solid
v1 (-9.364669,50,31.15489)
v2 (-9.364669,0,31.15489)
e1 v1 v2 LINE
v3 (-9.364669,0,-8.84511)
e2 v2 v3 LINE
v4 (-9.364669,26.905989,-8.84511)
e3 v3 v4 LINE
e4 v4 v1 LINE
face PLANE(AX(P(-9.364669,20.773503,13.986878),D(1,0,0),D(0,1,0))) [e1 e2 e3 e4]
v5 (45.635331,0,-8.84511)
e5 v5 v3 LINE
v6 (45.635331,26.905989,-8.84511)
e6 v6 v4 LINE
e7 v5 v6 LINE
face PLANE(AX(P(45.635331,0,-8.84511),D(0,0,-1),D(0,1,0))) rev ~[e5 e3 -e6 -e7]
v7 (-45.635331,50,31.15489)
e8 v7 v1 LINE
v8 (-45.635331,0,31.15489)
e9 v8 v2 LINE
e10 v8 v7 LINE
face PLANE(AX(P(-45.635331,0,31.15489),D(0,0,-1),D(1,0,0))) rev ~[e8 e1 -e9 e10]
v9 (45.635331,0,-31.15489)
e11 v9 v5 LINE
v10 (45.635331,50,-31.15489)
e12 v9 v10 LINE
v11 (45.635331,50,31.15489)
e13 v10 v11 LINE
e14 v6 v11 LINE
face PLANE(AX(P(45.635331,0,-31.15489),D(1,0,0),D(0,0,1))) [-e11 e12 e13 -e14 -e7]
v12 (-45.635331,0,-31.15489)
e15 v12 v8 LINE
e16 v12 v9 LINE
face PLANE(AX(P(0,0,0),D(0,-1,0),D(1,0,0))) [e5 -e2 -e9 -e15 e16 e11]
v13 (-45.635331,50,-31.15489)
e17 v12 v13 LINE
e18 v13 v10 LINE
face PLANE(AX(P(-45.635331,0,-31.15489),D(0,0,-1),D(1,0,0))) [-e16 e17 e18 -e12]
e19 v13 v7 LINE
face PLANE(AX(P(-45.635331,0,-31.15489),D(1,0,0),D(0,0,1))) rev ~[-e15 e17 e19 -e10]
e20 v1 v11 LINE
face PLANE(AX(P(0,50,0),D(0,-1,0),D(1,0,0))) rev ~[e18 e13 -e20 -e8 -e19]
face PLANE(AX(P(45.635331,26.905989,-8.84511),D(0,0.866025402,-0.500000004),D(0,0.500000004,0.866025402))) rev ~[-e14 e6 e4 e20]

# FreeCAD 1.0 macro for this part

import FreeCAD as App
import Part
import Sketcher
Q = App.Units.Quantity

doc = App.newDocument("Part")
params = doc.addObject("Spreadsheet::Sheet", "Params")
for row, (alias, value) in enumerate([
    ("pad1_length", "50 mm"),
    ("sketch2_width", "50 mm"),
    ("sketch2_height", "40 mm"),
    ("pocket1_length", "55 mm"),
], start=1):
    params.set(f"A{row}", alias)
    params.set(f"B{row}", "=" + value)
    params.setAlias(f"B{row}", alias)

body = doc.addObject("PartDesign::Body", "Body")

# Sketch on XZ plane
sketch1 = body.newObject("Sketcher::SketchObject", "Sketch")
sketch1.AttachmentSupport = (doc.getObject("XZ_Plane"), [""])
sketch1.MapMode = "FlatFace"
sketch1.addGeometry([
    Part.LineSegment(App.Vector(-46, 31, 0), App.Vector(-46, -31, 0)),
    Part.LineSegment(App.Vector(-46, -31, 0), App.Vector(46, -31, 0)),
    Part.LineSegment(App.Vector(46, -31, 0), App.Vector(46, 31, 0)),
    Part.LineSegment(App.Vector(46, 31, 0), App.Vector(-46, 31, 0)),
], False)
sketch1.addConstraint([
    Sketcher.Constraint("Coincident", 0, 2, 1, 1),
    Sketcher.Constraint("Coincident", 1, 2, 2, 1),
    Sketcher.Constraint("Coincident", 2, 2, 3, 1),
    Sketcher.Constraint("Coincident", 3, 2, 0, 1),
    Sketcher.Constraint("Vertical", 0),
    Sketcher.Constraint("Horizontal", 1),
    Sketcher.Constraint("Vertical", 2),
    Sketcher.Constraint("Horizontal", 3),
    Sketcher.Constraint("Symmetric", 0, 2, 2, 2, -1, 1),
    Sketcher.Constraint("DistanceX", 1, 1, 1, 2, 91.270662),
    Sketcher.Constraint("DistanceY", 0, 2, 0, 1, 62.30978),
])
pad1 = body.newObject("PartDesign::Pad", "Pad")
pad1.Profile = sketch1
pad1.setExpression("Length", "Params.pad1_length")
pad1.Reversed = True

# Sketch on YZ plane
sketch2 = body.newObject("Sketcher::SketchObject", "Sketch001")
sketch2.AttachmentSupport = (doc.getObject("YZ_Plane"), [""])
sketch2.MapMode = "FlatFace"
sketch2.AttachmentOffset = App.Placement(App.Vector(0, 0, 45.635331), App.Rotation())
sketch2.addGeometry([
    Part.LineSegment(App.Vector(0, 31, 0), App.Vector(0, -9, 0)),
    Part.LineSegment(App.Vector(0, -9, 0), App.Vector(27, -9, 0)),
    Part.LineSegment(App.Vector(27, -9, 0), App.Vector(50, 31, 0)),
    Part.LineSegment(App.Vector(50, 31, 0), App.Vector(0, 31, 0)),
], False)
sketch2.addConstraint([
    Sketcher.Constraint("Coincident", 0, 2, 1, 1),
    Sketcher.Constraint("Coincident", 1, 2, 2, 1),
    Sketcher.Constraint("Coincident", 2, 2, 3, 1),
    Sketcher.Constraint("Coincident", 3, 2, 0, 1),
    Sketcher.Constraint("Vertical", 0),
    Sketcher.Constraint("Horizontal", 1),
    Sketcher.Constraint("Horizontal", 3),
    Sketcher.Constraint("PointOnObject", 0, 2, -2),
    Sketcher.Constraint("DistanceX", 3, 2, 3, 1, 50.0),
    Sketcher.Constraint("DistanceY", 0, 2, 0, 1, 40.0),
    Sketcher.Constraint("Angle", 2, Q("60 deg")),
    Sketcher.Constraint("DistanceY", 0, 2, -1, 1, 8.84511),
])
sketch2.setExpression("Constraints[8]", "Params.sketch2_width")
sketch2.setExpression("Constraints[9]", "Params.sketch2_height")
pocket1 = body.newObject("PartDesign::Pocket", "Pocket")
pocket1.Profile = sketch2
pocket1.setExpression("Length", "Params.pocket1_length")

doc.recompute()
